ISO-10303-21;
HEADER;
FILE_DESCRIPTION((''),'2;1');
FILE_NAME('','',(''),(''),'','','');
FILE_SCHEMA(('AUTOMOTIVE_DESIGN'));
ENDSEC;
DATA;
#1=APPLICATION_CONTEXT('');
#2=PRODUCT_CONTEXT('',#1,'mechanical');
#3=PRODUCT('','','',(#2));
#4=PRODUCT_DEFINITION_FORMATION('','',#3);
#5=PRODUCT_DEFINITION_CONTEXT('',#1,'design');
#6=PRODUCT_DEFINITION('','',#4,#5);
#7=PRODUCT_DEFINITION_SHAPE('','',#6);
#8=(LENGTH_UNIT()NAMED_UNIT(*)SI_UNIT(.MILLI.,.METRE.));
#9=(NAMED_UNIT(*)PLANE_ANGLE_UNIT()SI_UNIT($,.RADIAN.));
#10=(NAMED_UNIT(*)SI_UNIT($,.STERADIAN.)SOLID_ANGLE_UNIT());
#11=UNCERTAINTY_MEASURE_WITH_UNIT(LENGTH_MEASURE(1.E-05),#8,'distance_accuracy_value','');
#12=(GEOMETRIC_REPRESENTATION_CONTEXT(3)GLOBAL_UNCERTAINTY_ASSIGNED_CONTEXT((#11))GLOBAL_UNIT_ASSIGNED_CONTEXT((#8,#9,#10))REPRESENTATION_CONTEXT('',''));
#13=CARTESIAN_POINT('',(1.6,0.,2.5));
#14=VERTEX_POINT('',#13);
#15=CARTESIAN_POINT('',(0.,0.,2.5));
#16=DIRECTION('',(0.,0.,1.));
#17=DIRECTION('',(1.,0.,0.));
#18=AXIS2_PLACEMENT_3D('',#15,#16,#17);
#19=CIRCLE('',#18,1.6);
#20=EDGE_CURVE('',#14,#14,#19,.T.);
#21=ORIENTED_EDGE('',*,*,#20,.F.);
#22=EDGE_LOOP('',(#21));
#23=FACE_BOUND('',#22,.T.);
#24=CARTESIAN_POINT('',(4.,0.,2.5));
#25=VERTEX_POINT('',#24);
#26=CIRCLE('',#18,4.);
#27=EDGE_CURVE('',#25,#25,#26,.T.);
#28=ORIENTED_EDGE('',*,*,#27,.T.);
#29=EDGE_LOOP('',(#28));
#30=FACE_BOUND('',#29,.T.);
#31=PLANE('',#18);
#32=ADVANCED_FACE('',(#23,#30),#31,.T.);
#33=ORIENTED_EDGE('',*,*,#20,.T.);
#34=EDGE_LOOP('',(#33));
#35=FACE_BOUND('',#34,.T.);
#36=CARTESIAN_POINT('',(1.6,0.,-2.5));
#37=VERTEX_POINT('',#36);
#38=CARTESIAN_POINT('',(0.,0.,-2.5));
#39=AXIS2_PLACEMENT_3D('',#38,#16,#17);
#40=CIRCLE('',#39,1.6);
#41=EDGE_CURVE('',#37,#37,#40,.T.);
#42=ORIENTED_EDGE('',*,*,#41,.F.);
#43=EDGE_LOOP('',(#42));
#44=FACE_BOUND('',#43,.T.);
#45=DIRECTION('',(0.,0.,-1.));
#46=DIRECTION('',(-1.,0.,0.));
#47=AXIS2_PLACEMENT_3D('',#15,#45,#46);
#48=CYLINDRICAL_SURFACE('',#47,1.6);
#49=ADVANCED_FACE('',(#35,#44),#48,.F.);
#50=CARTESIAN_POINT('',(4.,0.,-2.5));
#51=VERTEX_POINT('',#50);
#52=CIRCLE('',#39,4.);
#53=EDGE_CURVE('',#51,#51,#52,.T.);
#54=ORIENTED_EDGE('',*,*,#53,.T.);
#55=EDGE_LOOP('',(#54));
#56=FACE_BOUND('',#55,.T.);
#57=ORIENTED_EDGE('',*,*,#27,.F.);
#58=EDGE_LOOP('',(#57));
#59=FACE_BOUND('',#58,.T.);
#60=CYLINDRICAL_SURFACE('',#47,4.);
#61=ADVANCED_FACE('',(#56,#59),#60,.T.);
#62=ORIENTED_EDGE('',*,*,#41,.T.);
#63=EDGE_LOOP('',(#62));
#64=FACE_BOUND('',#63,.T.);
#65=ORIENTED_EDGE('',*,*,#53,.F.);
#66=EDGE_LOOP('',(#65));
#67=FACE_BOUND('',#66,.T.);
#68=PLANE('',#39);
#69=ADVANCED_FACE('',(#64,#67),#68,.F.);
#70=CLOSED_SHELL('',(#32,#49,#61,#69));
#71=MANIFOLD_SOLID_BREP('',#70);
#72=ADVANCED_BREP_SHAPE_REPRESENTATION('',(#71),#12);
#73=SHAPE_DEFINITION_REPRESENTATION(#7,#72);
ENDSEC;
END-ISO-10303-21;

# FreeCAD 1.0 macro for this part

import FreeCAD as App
import Part
import Sketcher

doc = App.newDocument("Part")
body = doc.addObject("PartDesign::Body", "Body")

# Sketch on XY plane
sketch1 = doc.addObject("Sketcher::SketchObject", "Sketch")
body.addObject(sketch1)
sketch1.AttachmentSupport = (doc.XY_Plane, [""])
sketch1.MapMode = "FlatFace"
sketch1.addGeometry(Part.Circle(App.Vector(0, 0, 0), App.Vector(0, 0, 1), 4), False)
sketch1.addGeometry(Part.Circle(App.Vector(0, 0, 0), App.Vector(0, 0, 1), 1.6), False)
sketch1.addConstraint(Sketcher.Constraint("Coincident", 0, 3, -1, 1))
sketch1.addConstraint(Sketcher.Constraint("Coincident", 1, 3, -1, 1))
sketch1.addConstraint(Sketcher.Constraint("Diameter", 0, 8.0))
sketch1.addConstraint(Sketcher.Constraint("Diameter", 1, 3.2))
pad1 = doc.addObject("PartDesign::Pad", "Pad")
body.addObject(pad1)
pad1.Profile = sketch1
pad1.Type = "TwoLengths"
pad1.Length = 2.5
pad1.Length2 = 2.5

doc.recompute()
